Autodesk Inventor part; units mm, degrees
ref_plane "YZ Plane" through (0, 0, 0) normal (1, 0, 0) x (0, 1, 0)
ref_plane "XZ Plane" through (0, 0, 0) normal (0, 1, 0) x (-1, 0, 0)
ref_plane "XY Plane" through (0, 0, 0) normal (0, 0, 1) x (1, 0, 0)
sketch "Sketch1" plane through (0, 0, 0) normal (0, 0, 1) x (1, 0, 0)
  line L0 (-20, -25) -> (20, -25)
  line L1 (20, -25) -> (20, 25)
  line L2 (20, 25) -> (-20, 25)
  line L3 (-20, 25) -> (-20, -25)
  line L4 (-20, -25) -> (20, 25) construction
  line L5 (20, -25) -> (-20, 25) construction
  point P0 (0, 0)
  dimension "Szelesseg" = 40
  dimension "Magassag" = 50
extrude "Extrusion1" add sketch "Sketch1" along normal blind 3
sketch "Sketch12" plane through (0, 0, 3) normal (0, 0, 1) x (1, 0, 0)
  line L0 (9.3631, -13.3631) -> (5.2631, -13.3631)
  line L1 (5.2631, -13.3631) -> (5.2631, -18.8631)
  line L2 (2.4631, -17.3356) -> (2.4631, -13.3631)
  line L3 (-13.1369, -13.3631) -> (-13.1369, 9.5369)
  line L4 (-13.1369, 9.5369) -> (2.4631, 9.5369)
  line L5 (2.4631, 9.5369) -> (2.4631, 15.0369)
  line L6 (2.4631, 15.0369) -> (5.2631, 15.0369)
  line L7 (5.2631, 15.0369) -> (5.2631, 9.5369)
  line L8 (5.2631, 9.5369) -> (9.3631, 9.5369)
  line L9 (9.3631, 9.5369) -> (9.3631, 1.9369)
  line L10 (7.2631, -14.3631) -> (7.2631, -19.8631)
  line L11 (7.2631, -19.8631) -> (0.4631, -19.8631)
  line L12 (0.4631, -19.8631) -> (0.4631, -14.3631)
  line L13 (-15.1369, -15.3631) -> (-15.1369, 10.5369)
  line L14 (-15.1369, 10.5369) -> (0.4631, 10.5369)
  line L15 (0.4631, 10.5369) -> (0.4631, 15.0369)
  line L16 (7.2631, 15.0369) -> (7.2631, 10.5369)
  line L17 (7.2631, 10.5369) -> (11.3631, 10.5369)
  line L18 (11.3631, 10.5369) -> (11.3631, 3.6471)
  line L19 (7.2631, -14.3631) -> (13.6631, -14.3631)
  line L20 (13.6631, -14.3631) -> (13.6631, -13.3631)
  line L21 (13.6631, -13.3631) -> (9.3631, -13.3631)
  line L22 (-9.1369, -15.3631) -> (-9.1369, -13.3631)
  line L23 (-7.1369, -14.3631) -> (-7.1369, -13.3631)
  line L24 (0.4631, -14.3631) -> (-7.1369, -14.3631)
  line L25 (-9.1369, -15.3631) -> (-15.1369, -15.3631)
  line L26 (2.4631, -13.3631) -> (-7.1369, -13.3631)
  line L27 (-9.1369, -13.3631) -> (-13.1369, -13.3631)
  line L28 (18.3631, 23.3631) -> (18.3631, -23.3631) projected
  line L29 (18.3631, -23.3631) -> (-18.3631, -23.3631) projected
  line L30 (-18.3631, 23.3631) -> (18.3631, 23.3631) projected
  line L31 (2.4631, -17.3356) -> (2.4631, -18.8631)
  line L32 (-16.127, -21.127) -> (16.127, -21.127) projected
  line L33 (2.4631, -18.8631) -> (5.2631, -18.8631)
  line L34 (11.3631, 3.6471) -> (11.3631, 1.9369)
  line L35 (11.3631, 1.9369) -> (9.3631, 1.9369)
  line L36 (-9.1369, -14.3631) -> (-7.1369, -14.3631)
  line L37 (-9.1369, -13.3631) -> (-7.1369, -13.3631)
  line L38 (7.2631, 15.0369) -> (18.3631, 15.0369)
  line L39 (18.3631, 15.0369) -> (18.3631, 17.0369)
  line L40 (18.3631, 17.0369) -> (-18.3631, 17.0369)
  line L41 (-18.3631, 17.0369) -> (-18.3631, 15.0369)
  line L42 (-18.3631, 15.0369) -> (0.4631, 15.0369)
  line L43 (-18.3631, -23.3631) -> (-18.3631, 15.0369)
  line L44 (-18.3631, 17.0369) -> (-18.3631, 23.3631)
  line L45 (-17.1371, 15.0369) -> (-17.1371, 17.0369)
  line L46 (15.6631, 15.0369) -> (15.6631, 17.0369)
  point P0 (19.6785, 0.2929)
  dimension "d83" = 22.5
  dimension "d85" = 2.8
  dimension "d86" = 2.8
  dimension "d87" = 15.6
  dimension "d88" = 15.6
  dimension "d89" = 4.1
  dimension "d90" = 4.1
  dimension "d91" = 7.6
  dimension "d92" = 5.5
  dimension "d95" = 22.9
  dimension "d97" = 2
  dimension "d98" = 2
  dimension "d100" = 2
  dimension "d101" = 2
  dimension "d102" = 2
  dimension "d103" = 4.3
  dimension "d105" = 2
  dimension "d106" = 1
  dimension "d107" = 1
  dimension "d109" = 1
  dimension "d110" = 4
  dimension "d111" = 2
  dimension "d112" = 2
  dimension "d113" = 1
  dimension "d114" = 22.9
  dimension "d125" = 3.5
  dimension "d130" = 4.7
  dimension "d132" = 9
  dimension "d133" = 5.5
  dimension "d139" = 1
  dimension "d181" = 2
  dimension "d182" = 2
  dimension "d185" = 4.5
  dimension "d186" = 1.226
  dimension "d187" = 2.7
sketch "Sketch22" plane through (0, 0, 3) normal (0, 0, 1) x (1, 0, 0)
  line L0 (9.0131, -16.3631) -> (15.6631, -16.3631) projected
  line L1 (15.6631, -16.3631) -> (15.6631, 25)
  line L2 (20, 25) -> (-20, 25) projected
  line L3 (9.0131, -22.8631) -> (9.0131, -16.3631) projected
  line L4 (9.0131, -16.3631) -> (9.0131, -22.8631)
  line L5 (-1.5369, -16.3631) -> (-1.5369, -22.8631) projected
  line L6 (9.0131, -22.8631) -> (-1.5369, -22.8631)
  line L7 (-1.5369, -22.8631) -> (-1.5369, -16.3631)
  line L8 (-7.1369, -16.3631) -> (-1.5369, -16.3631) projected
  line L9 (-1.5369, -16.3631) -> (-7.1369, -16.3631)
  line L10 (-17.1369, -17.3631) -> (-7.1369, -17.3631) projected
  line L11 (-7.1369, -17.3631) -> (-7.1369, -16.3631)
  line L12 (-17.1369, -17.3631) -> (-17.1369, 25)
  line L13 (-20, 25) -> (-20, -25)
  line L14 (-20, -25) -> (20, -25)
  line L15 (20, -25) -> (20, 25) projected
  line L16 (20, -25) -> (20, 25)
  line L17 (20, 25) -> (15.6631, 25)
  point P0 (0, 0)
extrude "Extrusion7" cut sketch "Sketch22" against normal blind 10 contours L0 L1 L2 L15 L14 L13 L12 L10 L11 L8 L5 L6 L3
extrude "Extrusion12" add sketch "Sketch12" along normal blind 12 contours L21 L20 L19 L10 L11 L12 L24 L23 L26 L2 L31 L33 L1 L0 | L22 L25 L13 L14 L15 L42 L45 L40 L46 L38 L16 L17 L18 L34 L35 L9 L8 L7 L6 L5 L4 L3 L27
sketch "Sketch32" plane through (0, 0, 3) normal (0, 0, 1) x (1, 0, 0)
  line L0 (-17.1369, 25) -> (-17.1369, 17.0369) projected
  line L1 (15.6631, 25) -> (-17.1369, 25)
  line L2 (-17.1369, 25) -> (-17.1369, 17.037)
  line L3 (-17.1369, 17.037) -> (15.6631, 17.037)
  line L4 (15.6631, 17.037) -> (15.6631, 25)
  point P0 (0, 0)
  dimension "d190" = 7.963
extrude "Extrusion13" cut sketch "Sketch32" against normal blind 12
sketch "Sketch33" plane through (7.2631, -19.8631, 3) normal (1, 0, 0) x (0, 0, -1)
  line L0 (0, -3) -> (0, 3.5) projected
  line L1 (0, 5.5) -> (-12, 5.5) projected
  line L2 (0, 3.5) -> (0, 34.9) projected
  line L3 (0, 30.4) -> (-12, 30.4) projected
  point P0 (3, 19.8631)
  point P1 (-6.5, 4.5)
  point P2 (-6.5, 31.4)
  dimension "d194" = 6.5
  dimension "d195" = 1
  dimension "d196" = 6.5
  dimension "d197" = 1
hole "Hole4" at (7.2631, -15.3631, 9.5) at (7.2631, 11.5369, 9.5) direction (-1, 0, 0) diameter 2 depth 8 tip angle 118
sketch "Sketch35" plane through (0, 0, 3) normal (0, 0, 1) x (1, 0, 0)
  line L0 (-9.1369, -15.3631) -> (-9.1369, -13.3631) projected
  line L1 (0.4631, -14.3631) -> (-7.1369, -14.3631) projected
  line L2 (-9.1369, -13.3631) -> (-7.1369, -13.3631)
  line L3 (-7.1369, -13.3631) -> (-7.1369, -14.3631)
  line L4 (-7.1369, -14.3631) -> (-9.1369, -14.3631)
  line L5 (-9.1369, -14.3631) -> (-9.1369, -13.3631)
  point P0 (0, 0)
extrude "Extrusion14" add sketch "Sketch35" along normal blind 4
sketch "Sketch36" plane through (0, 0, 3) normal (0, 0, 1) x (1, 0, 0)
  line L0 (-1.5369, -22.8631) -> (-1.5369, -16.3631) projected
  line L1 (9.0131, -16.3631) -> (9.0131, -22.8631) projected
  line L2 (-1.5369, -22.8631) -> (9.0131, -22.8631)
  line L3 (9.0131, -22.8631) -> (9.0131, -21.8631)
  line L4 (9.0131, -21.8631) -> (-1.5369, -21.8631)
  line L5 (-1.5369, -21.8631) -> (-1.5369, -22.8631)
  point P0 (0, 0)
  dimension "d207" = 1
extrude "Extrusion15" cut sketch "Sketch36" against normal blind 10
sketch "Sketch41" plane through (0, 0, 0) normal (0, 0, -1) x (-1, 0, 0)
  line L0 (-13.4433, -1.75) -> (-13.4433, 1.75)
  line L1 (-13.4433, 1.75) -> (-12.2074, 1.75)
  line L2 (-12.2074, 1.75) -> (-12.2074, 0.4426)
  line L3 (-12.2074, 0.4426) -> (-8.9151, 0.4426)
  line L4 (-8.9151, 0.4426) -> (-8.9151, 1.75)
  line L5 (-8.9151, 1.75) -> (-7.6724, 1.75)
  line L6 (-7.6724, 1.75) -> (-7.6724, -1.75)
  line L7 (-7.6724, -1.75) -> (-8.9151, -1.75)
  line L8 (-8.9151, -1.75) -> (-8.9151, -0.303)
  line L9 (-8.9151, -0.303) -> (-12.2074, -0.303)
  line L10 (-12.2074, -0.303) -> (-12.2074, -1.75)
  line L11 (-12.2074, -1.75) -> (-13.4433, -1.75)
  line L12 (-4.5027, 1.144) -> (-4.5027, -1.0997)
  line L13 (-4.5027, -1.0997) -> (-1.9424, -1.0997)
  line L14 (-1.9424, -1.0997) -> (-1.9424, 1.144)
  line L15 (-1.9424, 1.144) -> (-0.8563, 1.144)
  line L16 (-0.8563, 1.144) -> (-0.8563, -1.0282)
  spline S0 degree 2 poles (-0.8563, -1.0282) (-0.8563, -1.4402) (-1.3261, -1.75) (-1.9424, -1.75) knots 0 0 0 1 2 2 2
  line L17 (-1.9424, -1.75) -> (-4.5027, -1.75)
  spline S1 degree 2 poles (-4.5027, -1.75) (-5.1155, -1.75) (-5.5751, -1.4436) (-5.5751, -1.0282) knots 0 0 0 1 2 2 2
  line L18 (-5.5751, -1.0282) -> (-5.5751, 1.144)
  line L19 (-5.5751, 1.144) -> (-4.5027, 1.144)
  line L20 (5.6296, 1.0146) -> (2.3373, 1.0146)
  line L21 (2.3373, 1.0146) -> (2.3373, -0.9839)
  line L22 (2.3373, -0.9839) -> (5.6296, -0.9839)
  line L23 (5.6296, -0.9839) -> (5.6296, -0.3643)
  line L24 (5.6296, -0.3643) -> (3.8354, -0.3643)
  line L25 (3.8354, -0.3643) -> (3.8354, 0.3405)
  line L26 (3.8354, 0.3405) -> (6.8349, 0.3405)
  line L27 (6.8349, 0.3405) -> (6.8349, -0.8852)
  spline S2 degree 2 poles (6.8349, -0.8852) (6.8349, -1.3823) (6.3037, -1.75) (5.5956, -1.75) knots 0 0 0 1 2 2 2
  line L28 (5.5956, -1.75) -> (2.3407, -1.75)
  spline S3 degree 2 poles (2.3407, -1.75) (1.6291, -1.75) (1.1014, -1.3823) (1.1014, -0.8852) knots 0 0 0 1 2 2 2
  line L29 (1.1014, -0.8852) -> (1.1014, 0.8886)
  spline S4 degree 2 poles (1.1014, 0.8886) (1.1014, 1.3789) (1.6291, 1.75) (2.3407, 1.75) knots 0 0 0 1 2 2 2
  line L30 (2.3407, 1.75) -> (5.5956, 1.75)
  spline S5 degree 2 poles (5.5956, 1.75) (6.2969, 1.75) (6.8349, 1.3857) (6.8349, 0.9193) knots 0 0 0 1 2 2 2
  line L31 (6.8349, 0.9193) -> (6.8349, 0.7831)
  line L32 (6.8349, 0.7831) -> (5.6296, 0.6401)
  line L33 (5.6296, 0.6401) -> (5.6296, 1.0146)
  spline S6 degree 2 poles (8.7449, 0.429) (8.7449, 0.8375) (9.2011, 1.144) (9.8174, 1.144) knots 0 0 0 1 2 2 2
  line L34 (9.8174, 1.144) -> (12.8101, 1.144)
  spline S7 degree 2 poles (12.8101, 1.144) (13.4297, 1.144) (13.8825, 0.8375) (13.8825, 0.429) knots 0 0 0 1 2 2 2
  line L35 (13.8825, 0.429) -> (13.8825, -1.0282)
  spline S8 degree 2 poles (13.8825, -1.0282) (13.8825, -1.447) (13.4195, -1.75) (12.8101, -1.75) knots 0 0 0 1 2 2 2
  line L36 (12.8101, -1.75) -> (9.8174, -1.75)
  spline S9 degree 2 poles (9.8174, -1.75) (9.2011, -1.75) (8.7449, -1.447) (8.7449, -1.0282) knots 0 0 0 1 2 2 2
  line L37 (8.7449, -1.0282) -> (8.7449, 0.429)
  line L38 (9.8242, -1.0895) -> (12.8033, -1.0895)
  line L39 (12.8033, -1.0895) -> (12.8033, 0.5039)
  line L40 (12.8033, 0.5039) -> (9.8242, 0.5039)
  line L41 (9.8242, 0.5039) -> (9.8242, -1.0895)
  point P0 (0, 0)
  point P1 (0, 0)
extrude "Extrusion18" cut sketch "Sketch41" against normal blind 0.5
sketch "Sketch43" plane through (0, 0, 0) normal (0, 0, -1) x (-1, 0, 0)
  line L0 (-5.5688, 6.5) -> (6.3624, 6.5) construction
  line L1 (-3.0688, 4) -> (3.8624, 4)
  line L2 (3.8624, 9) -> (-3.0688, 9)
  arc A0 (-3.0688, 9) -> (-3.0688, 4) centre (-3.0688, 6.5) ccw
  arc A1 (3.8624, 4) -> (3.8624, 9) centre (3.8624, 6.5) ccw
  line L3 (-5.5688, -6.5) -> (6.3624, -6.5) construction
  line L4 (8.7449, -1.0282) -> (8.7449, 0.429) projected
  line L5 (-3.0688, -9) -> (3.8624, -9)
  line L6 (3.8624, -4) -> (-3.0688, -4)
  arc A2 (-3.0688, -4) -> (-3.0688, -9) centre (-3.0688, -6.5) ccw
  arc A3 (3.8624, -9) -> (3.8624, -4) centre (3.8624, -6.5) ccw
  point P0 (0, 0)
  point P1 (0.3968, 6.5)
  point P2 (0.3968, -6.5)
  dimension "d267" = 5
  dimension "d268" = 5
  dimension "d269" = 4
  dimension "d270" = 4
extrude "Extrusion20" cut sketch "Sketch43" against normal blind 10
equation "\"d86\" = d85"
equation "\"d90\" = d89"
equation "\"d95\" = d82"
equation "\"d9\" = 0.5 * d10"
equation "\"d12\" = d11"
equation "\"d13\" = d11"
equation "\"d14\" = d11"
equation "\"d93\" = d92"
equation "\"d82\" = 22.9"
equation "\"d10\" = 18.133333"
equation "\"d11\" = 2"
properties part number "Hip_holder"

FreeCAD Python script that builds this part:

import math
import FreeCAD as App
import Part
import Sketcher
from FreeCAD import Vector
Q = App.Units.Quantity

doc = App.newDocument("Part")
body = doc.addObject("PartDesign::Body", "Body")

# Sketch on XY plane
sketch1 = doc.addObject("Sketcher::SketchObject", "Sketch")
body.addObject(sketch1)
sketch1.AttachmentSupport = (doc.XY_Plane, [""])
sketch1.MapMode = "FlatFace"
sketch1.addGeometry(Part.LineSegment(Vector(-20, 25, 0), Vector(-20, -25, 0)), False)
sketch1.addGeometry(Part.LineSegment(Vector(-20, -25, 0), Vector(20, -25, 0)), False)
sketch1.addGeometry(Part.LineSegment(Vector(20, -25, 0), Vector(20, 25, 0)), False)
sketch1.addGeometry(Part.LineSegment(Vector(20, 25, 0), Vector(-20, 25, 0)), False)
sketch1.addConstraint(Sketcher.Constraint("Coincident", 0, 2, 1, 1))
sketch1.addConstraint(Sketcher.Constraint("Coincident", 1, 2, 2, 1))
sketch1.addConstraint(Sketcher.Constraint("Coincident", 2, 2, 3, 1))
sketch1.addConstraint(Sketcher.Constraint("Coincident", 3, 2, 0, 1))
sketch1.addConstraint(Sketcher.Constraint("Vertical", 0))
sketch1.addConstraint(Sketcher.Constraint("Horizontal", 1))
sketch1.addConstraint(Sketcher.Constraint("Vertical", 2))
sketch1.addConstraint(Sketcher.Constraint("Horizontal", 3))
sketch1.addConstraint(Sketcher.Constraint("Symmetric", 0, 2, 2, 2, -1, 1))
sketch1.addConstraint(Sketcher.Constraint("DistanceX", 1, 1, 1, 2, Q("40 mm")))
sketch1.addConstraint(Sketcher.Constraint("DistanceY", 0, 2, 0, 1, Q("50 mm")))
pad1 = doc.addObject("PartDesign::Pad", "Pad")
body.addObject(pad1)
pad1.Profile = sketch1
pad1.Length = 3

# Sketch on XY plane
sketch2 = doc.addObject("Sketcher::SketchObject", "Sketch001")
body.addObject(sketch2)
sketch2.AttachmentSupport = (doc.XY_Plane, [""])
sketch2.MapMode = "FlatFace"
sketch2.AttachmentOffset = App.Placement(Vector(0, 0, 3), App.Rotation())
sketch2.addGeometry(Part.LineSegment(Vector(15.6631, -16.3631, 0), Vector(9.0131, -16.3631, 0)), False)
sketch2.addGeometry(Part.LineSegment(Vector(9.0131, -16.3631, 0), Vector(9.0131, -22.8631, 0)), False)
sketch2.addGeometry(Part.LineSegment(Vector(9.0131, -22.8631, 0), Vector(-1.5369, -22.8631, 0)), False)
sketch2.addGeometry(Part.LineSegment(Vector(-1.5369, -22.8631, 0), Vector(-1.5369, -16.3631, 0)), False)
sketch2.addGeometry(Part.LineSegment(Vector(-1.5369, -16.3631, 0), Vector(-7.1369, -16.3631, 0)), False)
sketch2.addGeometry(Part.LineSegment(Vector(-7.1369, -16.3631, 0), Vector(-7.1369, -17.3631, 0)), False)
sketch2.addGeometry(Part.LineSegment(Vector(-7.1369, -17.3631, 0), Vector(-17.1369, -17.3631, 0)), False)
sketch2.addGeometry(Part.LineSegment(Vector(-17.1369, -17.3631, 0), Vector(-17.1369, 25, 0)), False)
sketch2.addGeometry(Part.LineSegment(Vector(-17.1369, 25, 0), Vector(-20, 25, 0)), False)
sketch2.addGeometry(Part.LineSegment(Vector(-20, 25, 0), Vector(-20, -25, 0)), False)
sketch2.addGeometry(Part.LineSegment(Vector(-20, -25, 0), Vector(20, -25, 0)), False)
sketch2.addGeometry(Part.LineSegment(Vector(20, -25, 0), Vector(20, 25, 0)), False)
sketch2.addGeometry(Part.LineSegment(Vector(20, 25, 0), Vector(15.6631, 25, 0)), False)
sketch2.addGeometry(Part.LineSegment(Vector(15.6631, 25, 0), Vector(15.6631, -16.3631, 0)), False)
sketch2.addConstraint(Sketcher.Constraint("Coincident", 0, 2, 1, 1))
sketch2.addConstraint(Sketcher.Constraint("Coincident", 1, 2, 2, 1))
sketch2.addConstraint(Sketcher.Constraint("Coincident", 2, 2, 3, 1))
sketch2.addConstraint(Sketcher.Constraint("Coincident", 3, 2, 4, 1))
sketch2.addConstraint(Sketcher.Constraint("Coincident", 4, 2, 5, 1))
sketch2.addConstraint(Sketcher.Constraint("Coincident", 5, 2, 6, 1))
sketch2.addConstraint(Sketcher.Constraint("Coincident", 6, 2, 7, 1))
sketch2.addConstraint(Sketcher.Constraint("Coincident", 7, 2, 8, 1))
sketch2.addConstraint(Sketcher.Constraint("Coincident", 8, 2, 9, 1))
sketch2.addConstraint(Sketcher.Constraint("Coincident", 9, 2, 10, 1))
sketch2.addConstraint(Sketcher.Constraint("Coincident", 10, 2, 11, 1))
sketch2.addConstraint(Sketcher.Constraint("Coincident", 11, 2, 12, 1))
sketch2.addConstraint(Sketcher.Constraint("Coincident", 12, 2, 13, 1))
sketch2.addConstraint(Sketcher.Constraint("Coincident", 13, 2, 0, 1))
sketch2.addConstraint(Sketcher.Constraint("Horizontal", 0))
sketch2.addConstraint(Sketcher.Constraint("Vertical", 1))
sketch2.addConstraint(Sketcher.Constraint("Horizontal", 2))
sketch2.addConstraint(Sketcher.Constraint("Vertical", 3))
sketch2.addConstraint(Sketcher.Constraint("Horizontal", 4))
sketch2.addConstraint(Sketcher.Constraint("Vertical", 5))
sketch2.addConstraint(Sketcher.Constraint("Horizontal", 6))
sketch2.addConstraint(Sketcher.Constraint("Vertical", 7))
sketch2.addConstraint(Sketcher.Constraint("Horizontal", 8))
sketch2.addConstraint(Sketcher.Constraint("Vertical", 9))
sketch2.addConstraint(Sketcher.Constraint("Horizontal", 10))
sketch2.addConstraint(Sketcher.Constraint("Vertical", 11))
sketch2.addConstraint(Sketcher.Constraint("Horizontal", 12))
sketch2.addConstraint(Sketcher.Constraint("Vertical", 13))
sketch2.addConstraint(Sketcher.Constraint("Symmetric", 8, 2, 10, 2, -1, 1))
sketch2.addConstraint(Sketcher.Constraint("Horizontal", 0, 2, 3, 2))
sketch2.addConstraint(Sketcher.Constraint("Horizontal", 8, 2, 11, 2))
sketch2.addConstraint(Sketcher.Constraint("DistanceX", 6, 2, 6, 1, Q("10 mm")))
sketch2.addConstraint(Sketcher.Constraint("DistanceX", 10, 1, 10, 2, Q("40 mm")))
sketch2.addConstraint(Sketcher.Constraint("DistanceY", 5, 2, 5, 1, Q("1 mm")))
sketch2.addConstraint(Sketcher.Constraint("DistanceY", 9, 2, 9, 1, Q("50 mm")))
sketch2.addConstraint(Sketcher.Constraint("DistanceX", 4, 2, 4, 1, Q("5.6 mm")))
sketch2.addConstraint(Sketcher.Constraint("DistanceY", 1, 2, 1, 1, Q("6.5 mm")))
sketch2.addConstraint(Sketcher.Constraint("DistanceX", 0, 2, 0, 1, Q("6.65 mm")))
sketch2.addConstraint(Sketcher.Constraint("DistanceX", 2, 2, 2, 1, Q("10.55 mm")))
sketch2.addConstraint(Sketcher.Constraint("DistanceX", 8, 2, 8, 1, Q("2.863 mm")))
sketch2.addConstraint(Sketcher.Constraint("DistanceY", 7, 1, 7, 2, Q("42.363 mm")))
pocket1 = doc.addObject("PartDesign::Pocket", "Pocket")
body.addObject(pocket1)
pocket1.Profile = sketch2
pocket1.Length = 10

# Sketch on XY plane
sketch3 = doc.addObject("Sketcher::SketchObject", "Sketch002")
body.addObject(sketch3)
sketch3.AttachmentSupport = (doc.XY_Plane, [""])
sketch3.MapMode = "FlatFace"
sketch3.AttachmentOffset = App.Placement(Vector(0, 0, 3), App.Rotation())
sketch3.addGeometry(Part.LineSegment(Vector(13.6631, -13.3631, 0), Vector(5.2631, -13.3631, 0)), False)
sketch3.addGeometry(Part.LineSegment(Vector(5.2631, -13.3631, 0), Vector(5.2631, -18.8631, 0)), False)
sketch3.addGeometry(Part.LineSegment(Vector(5.2631, -18.8631, 0), Vector(2.4631, -18.8631, 0)), False)
sketch3.addGeometry(Part.LineSegment(Vector(2.4631, -18.8631, 0), Vector(2.4631, -13.3631, 0)), False)
sketch3.addGeometry(Part.LineSegment(Vector(2.4631, -13.3631, 0), Vector(-7.1369, -13.3631, 0)), False)
sketch3.addGeometry(Part.LineSegment(Vector(-7.1369, -13.3631, 0), Vector(-7.1369, -14.3631, 0)), False)
sketch3.addGeometry(Part.LineSegment(Vector(-7.1369, -14.3631, 0), Vector(0.4631, -14.3631, 0)), False)
sketch3.addGeometry(Part.LineSegment(Vector(0.4631, -14.3631, 0), Vector(0.4631, -19.8631, 0)), False)
sketch3.addGeometry(Part.LineSegment(Vector(0.4631, -19.8631, 0), Vector(7.2631, -19.8631, 0)), False)
sketch3.addGeometry(Part.LineSegment(Vector(7.2631, -19.8631, 0), Vector(7.2631, -14.3631, 0)), False)
sketch3.addGeometry(Part.LineSegment(Vector(7.2631, -14.3631, 0), Vector(13.6631, -14.3631, 0)), False)
sketch3.addGeometry(Part.LineSegment(Vector(13.6631, -14.3631, 0), Vector(13.6631, -13.3631, 0)), False)
sketch3.addGeometry(Part.LineSegment(Vector(-9.1369, -15.3631, 0), Vector(-9.1369, -13.3631, 0)), False)
sketch3.addGeometry(Part.LineSegment(Vector(-9.1369, -13.3631, 0), Vector(-13.1369, -13.3631, 0)), False)
sketch3.addGeometry(Part.LineSegment(Vector(-13.1369, -13.3631, 0), Vector(-13.1369, 9.5369, 0)), False)
sketch3.addGeometry(Part.LineSegment(Vector(-13.1369, 9.5369, 0), Vector(2.4631, 9.5369, 0)), False)
sketch3.addGeometry(Part.LineSegment(Vector(2.4631, 9.5369, 0), Vector(2.4631, 15.0369, 0)), False)
sketch3.addGeometry(Part.LineSegment(Vector(2.4631, 15.0369, 0), Vector(5.2631, 15.0369, 0)), False)
sketch3.addGeometry(Part.LineSegment(Vector(5.2631, 15.0369, 0), Vector(5.2631, 9.5369, 0)), False)
sketch3.addGeometry(Part.LineSegment(Vector(5.2631, 9.5369, 0), Vector(9.3631, 9.5369, 0)), False)
sketch3.addGeometry(Part.LineSegment(Vector(9.3631, 9.5369, 0), Vector(9.3631, 1.9369, 0)), False)
sketch3.addGeometry(Part.LineSegment(Vector(9.3631, 1.9369, 0), Vector(11.3631, 1.9369, 0)), False)
sketch3.addGeometry(Part.LineSegment(Vector(11.3631, 1.9369, 0), Vector(11.3631, 10.5369, 0)), False)
sketch3.addGeometry(Part.LineSegment(Vector(11.3631, 10.5369, 0), Vector(7.2631, 10.5369, 0)), False)
sketch3.addGeometry(Part.LineSegment(Vector(7.2631, 10.5369, 0), Vector(7.2631, 15.0369, 0)), False)
sketch3.addGeometry(Part.LineSegment(Vector(7.2631, 15.0369, 0), Vector(15.6631, 15.0369, 0)), False)
sketch3.addGeometry(Part.LineSegment(Vector(15.6631, 15.0369, 0), Vector(15.6631, 17.0369, 0)), False)
sketch3.addGeometry(Part.LineSegment(Vector(15.6631, 17.0369, 0), Vector(-17.1371, 17.0369, 0)), False)
sketch3.addGeometry(Part.LineSegment(Vector(-17.1371, 17.0369, 0), Vector(-17.1371, 15.0369, 0)), False)
sketch3.addGeometry(Part.LineSegment(Vector(-17.1371, 15.0369, 0), Vector(0.4631, 15.0369, 0)), False)
sketch3.addGeometry(Part.LineSegment(Vector(0.4631, 15.0369, 0), Vector(0.4631, 10.5369, 0)), False)
sketch3.addGeometry(Part.LineSegment(Vector(0.4631, 10.5369, 0), Vector(-15.1369, 10.5369, 0)), False)
sketch3.addGeometry(Part.LineSegment(Vector(-15.1369, 10.5369, 0), Vector(-15.1369, -15.3631, 0)), False)
sketch3.addGeometry(Part.LineSegment(Vector(-15.1369, -15.3631, 0), Vector(-9.1369, -15.3631, 0)), False)
sketch3.addConstraint(Sketcher.Constraint("Coincident", 0, 2, 1, 1))
sketch3.addConstraint(Sketcher.Constraint("Coincident", 1, 2, 2, 1))
sketch3.addConstraint(Sketcher.Constraint("Coincident", 2, 2, 3, 1))
sketch3.addConstraint(Sketcher.Constraint("Coincident", 3, 2, 4, 1))
sketch3.addConstraint(Sketcher.Constraint("Coincident", 4, 2, 5, 1))
sketch3.addConstraint(Sketcher.Constraint("Coincident", 5, 2, 6, 1))
sketch3.addConstraint(Sketcher.Constraint("Coincident", 6, 2, 7, 1))
sketch3.addConstraint(Sketcher.Constraint("Coincident", 7, 2, 8, 1))
sketch3.addConstraint(Sketcher.Constraint("Coincident", 8, 2, 9, 1))
sketch3.addConstraint(Sketcher.Constraint("Coincident", 9, 2, 10, 1))
sketch3.addConstraint(Sketcher.Constraint("Coincident", 10, 2, 11, 1))
sketch3.addConstraint(Sketcher.Constraint("Coincident", 11, 2, 0, 1))
sketch3.addConstraint(Sketcher.Constraint("Coincident", 12, 2, 13, 1))
sketch3.addConstraint(Sketcher.Constraint("Coincident", 13, 2, 14, 1))
sketch3.addConstraint(Sketcher.Constraint("Coincident", 14, 2, 15, 1))
sketch3.addConstraint(Sketcher.Constraint("Coincident", 15, 2, 16, 1))
sketch3.addConstraint(Sketcher.Constraint("Coincident", 16, 2, 17, 1))
sketch3.addConstraint(Sketcher.Constraint("Coincident", 17, 2, 18, 1))
sketch3.addConstraint(Sketcher.Constraint("Coincident", 18, 2, 19, 1))
sketch3.addConstraint(Sketcher.Constraint("Coincident", 19, 2, 20, 1))
sketch3.addConstraint(Sketcher.Constraint("Coincident", 20, 2, 21, 1))
sketch3.addConstraint(Sketcher.Constraint("Coincident", 21, 2, 22, 1))
sketch3.addConstraint(Sketcher.Constraint("Coincident", 22, 2, 23, 1))
sketch3.addConstraint(Sketcher.Constraint("Coincident", 23, 2, 24, 1))
sketch3.addConstraint(Sketcher.Constraint("Coincident", 24, 2, 25, 1))
sketch3.addConstraint(Sketcher.Constraint("Coincident", 25, 2, 26, 1))
sketch3.addConstraint(Sketcher.Constraint("Coincident", 26, 2, 27, 1))
sketch3.addConstraint(Sketcher.Constraint("Coincident", 27, 2, 28, 1))
sketch3.addConstraint(Sketcher.Constraint("Coincident", 28, 2, 29, 1))
sketch3.addConstraint(Sketcher.Constraint("Coincident", 29, 2, 30, 1))
sketch3.addConstraint(Sketcher.Constraint("Coincident", 30, 2, 31, 1))
sketch3.addConstraint(Sketcher.Constraint("Coincident", 31, 2, 32, 1))
sketch3.addConstraint(Sketcher.Constraint("Coincident", 32, 2, 33, 1))
sketch3.addConstraint(Sketcher.Constraint("Coincident", 33, 2, 12, 1))
sketch3.addConstraint(Sketcher.Constraint("Horizontal", 0))
sketch3.addConstraint(Sketcher.Constraint("Vertical", 1))
sketch3.addConstraint(Sketcher.Constraint("Horizontal", 2))
sketch3.addConstraint(Sketcher.Constraint("Vertical", 3))
sketch3.addConstraint(Sketcher.Constraint("Horizontal", 4))
sketch3.addConstraint(Sketcher.Constraint("Vertical", 5))
sketch3.addConstraint(Sketcher.Constraint("Horizontal", 6))
sketch3.addConstraint(Sketcher.Constraint("Vertical", 7))
sketch3.addConstraint(Sketcher.Constraint("Horizontal", 8))
sketch3.addConstraint(Sketcher.Constraint("Vertical", 9))
sketch3.addConstraint(Sketcher.Constraint("Horizontal", 10))
sketch3.addConstraint(Sketcher.Constraint("Vertical", 11))
sketch3.addConstraint(Sketcher.Constraint("Vertical", 12))
sketch3.addConstraint(Sketcher.Constraint("Horizontal", 13))
sketch3.addConstraint(Sketcher.Constraint("Vertical", 14))
sketch3.addConstraint(Sketcher.Constraint("Horizontal", 15))
sketch3.addConstraint(Sketcher.Constraint("Vertical", 16))
sketch3.addConstraint(Sketcher.Constraint("Horizontal", 17))
sketch3.addConstraint(Sketcher.Constraint("Vertical", 18))
sketch3.addConstraint(Sketcher.Constraint("Horizontal", 19))
sketch3.addConstraint(Sketcher.Constraint("Vertical", 20))
sketch3.addConstraint(Sketcher.Constraint("Horizontal", 21))
sketch3.addConstraint(Sketcher.Constraint("Vertical", 22))
sketch3.addConstraint(Sketcher.Constraint("Horizontal", 23))
sketch3.addConstraint(Sketcher.Constraint("Vertical", 24))
sketch3.addConstraint(Sketcher.Constraint("Horizontal", 25))
sketch3.addConstraint(Sketcher.Constraint("Vertical", 26))
sketch3.addConstraint(Sketcher.Constraint("Horizontal", 27))
sketch3.addConstraint(Sketcher.Constraint("Vertical", 28))
sketch3.addConstraint(Sketcher.Constraint("Horizontal", 29))
sketch3.addConstraint(Sketcher.Constraint("Vertical", 30))
sketch3.addConstraint(Sketcher.Constraint("Horizontal", 31))
sketch3.addConstraint(Sketcher.Constraint("Vertical", 32))
sketch3.addConstraint(Sketcher.Constraint("Horizontal", 33))
sketch3.addConstraint(Sketcher.Constraint("Horizontal", 0, 2, 3, 2))
sketch3.addConstraint(Sketcher.Constraint("Horizontal", 6, 2, 9, 2))
sketch3.addConstraint(Sketcher.Constraint("Horizontal", 11, 2, 12, 2))
sketch3.addConstraint(Sketcher.Constraint("Horizontal", 15, 2, 18, 2))
sketch3.addConstraint(Sketcher.Constraint("Horizontal", 17, 2, 24, 2))
sketch3.addConstraint(Sketcher.Constraint("Horizontal", 25, 2, 28, 2))
sketch3.addConstraint(Sketcher.Constraint("Horizontal", 23, 2, 30, 2))
sketch3.addConstraint(Sketcher.Constraint("Vertical", 3, 2, 15, 2))
sketch3.addConstraint(Sketcher.Constraint("Vertical", 1, 2, 17, 2))
sketch3.addConstraint(Sketcher.Constraint("Vertical", 9, 2, 23, 2))
sketch3.addConstraint(Sketcher.Constraint("Vertical", 7, 2, 29, 2))
sketch3.addConstraint(Sketcher.Constraint("Equal", 19, 23))
sketch3.addConstraint(Sketcher.Constraint("Equal", 0, 25))
sketch3.addConstraint(Sketcher.Constraint("Equal", 15, 31))
sketch3.addConstraint(Sketcher.Constraint("Equal", 3, 7))
sketch3.addConstraint(Sketcher.Constraint("Equal", 21, 12))
sketch3.addConstraint(Sketcher.Constraint("Equal", 9, 16))
sketch3.addConstraint(Sketcher.Constraint("Equal", 6, 20))
sketch3.addConstraint(Sketcher.Constraint("Equal", 12, 26))
sketch3.addConstraint(Sketcher.Constraint("DistanceX", 13, 2, 13, 1, Q("4 mm")))
sketch3.addConstraint(Sketcher.Constraint("DistanceX", 21, 1, 21, 2, Q("2 mm")))
sketch3.addConstraint(Sketcher.Constraint("DistanceY", 5, 2, 5, 1, Q("1 mm")))
sketch3.addConstraint(Sketcher.Constraint("DistanceX", 2, 2, 2, 1, Q("2.8 mm")))
sketch3.addConstraint(Sketcher.Constraint("DistanceX", 6, 1, 6, 2, Q("7.6 mm")))
sketch3.addConstraint(Sketcher.Constraint("DistanceX", 15, 1, 15, 2, Q("15.6 mm")))
sketch3.addConstraint(Sketcher.Constraint("DistanceX", 19, 1, 19, 2, Q("4.1 mm")))
sketch3.addConstraint(Sketcher.Constraint("DistanceY", 1, 2, 1, 1, Q("5.5 mm")))
sketch3.addConstraint(Sketcher.Constraint("DistanceY", 14, 1, 14, 2, Q("22.9 mm")))
sketch3.addConstraint(Sketcher.Constraint("DistanceY", 24, 1, 24, 2, Q("4.5 mm")))
sketch3.addConstraint(Sketcher.Constraint("DistanceX", 6, 2, 3, 2, Q("2 mm")))
sketch3.addConstraint(Sketcher.Constraint("DistanceX", 22, 2, 25, 2, Q("4.3 mm")))
sketch3.addConstraint(Sketcher.Constraint("DistanceX", 27, 2, 14, 2, Q("4.0002 mm")))
sketch3.addConstraint(Sketcher.Constraint("DistanceX", -1, 1, 0, 2, Q("5.263 mm")))
sketch3.addConstraint(Sketcher.Constraint("DistanceY", 0, 2, -1, 1, Q("13.363 mm")))
pad2 = doc.addObject("PartDesign::Pad", "Pad001")
body.addObject(pad2)
pad2.Profile = sketch3
pad2.Length = 12

# Sketch on XY plane
sketch4 = doc.addObject("Sketcher::SketchObject", "Sketch003")
body.addObject(sketch4)
sketch4.AttachmentSupport = (doc.XY_Plane, [""])
sketch4.MapMode = "FlatFace"
sketch4.AttachmentOffset = App.Placement(Vector(0, 0, 3), App.Rotation())
sketch4.addGeometry(Part.LineSegment(Vector(15.6631, 25, 0), Vector(-17.1369, 25, 0)), False)
sketch4.addGeometry(Part.LineSegment(Vector(-17.1369, 25, 0), Vector(-17.1369, 17.0369, 0)), False)
sketch4.addGeometry(Part.LineSegment(Vector(-17.1369, 17.0369, 0), Vector(15.6631, 17.037, 0)), False)
sketch4.addGeometry(Part.LineSegment(Vector(15.6631, 17.037, 0), Vector(15.6631, 25, 0)), False)
sketch4.addConstraint(Sketcher.Constraint("Coincident", 0, 2, 1, 1))
sketch4.addConstraint(Sketcher.Constraint("Coincident", 1, 2, 2, 1))
sketch4.addConstraint(Sketcher.Constraint("Coincident", 2, 2, 3, 1))
sketch4.addConstraint(Sketcher.Constraint("Coincident", 3, 2, 0, 1))
sketch4.addConstraint(Sketcher.Constraint("Horizontal", 0))
sketch4.addConstraint(Sketcher.Constraint("Vertical", 1))
sketch4.addConstraint(Sketcher.Constraint("Horizontal", 2))
sketch4.addConstraint(Sketcher.Constraint("Vertical", 3))
sketch4.addConstraint(Sketcher.Constraint("DistanceY", 1, 2, 1, 1, Q("7.963 mm")))
sketch4.addConstraint(Sketcher.Constraint("DistanceX", 0, 2, 0, 1, Q("32.8 mm")))
sketch4.addConstraint(Sketcher.Constraint("DistanceY", -1, 1, 0, 2, Q("25 mm")))
sketch4.addConstraint(Sketcher.Constraint("DistanceX", 0, 2, -1, 1, Q("17.137 mm")))
pocket2 = doc.addObject("PartDesign::Pocket", "Pocket001")
body.addObject(pocket2)
pocket2.Profile = sketch4
pocket2.Length = 12

# Sketch on YZ plane
sketch5 = doc.addObject("Sketcher::SketchObject", "Sketch004")
body.addObject(sketch5)
sketch5.AttachmentSupport = (doc.YZ_Plane, [""])
sketch5.MapMode = "FlatFace"
sketch5.AttachmentOffset = App.Placement(Vector(0, 0, 7.2631), App.Rotation())
sketch5.addGeometry(Part.Circle(Vector(-15.3631, 9.5, 0), Vector(0, 0, 1), 1), False)
sketch5.addGeometry(Part.Circle(Vector(11.5369, 9.5, 0), Vector(0, 0, 1), 1), False)
sketch5.addConstraint(Sketcher.Constraint("Equal", 0, 1))
sketch5.addConstraint(Sketcher.Constraint("Horizontal", 0, 3, 1, 3))
sketch5.addConstraint(Sketcher.Constraint("Diameter", 0, Q("2 mm")))
sketch5.addConstraint(Sketcher.Constraint("DistanceY", -1, 1, 0, 3, Q("9.5 mm")))
sketch5.addConstraint(Sketcher.Constraint("DistanceX", 0, 3, 1, 3, Q("26.9 mm")))
sketch5.addConstraint(Sketcher.Constraint("DistanceX", 0, 3, -1, 1, Q("15.363 mm")))
doc.recompute()
hole = doc.addObject("PartDesign::Hole", "Hole")
body.addObject(hole)
hole.Profile = sketch5
hole.ThreadType = "None"
hole.Diameter = 2
hole.DepthType = "Dimension"
hole.Depth = 8
hole.DrillPoint = "Angled"
hole.DrillPointAngle = 118

# Sketch on XY plane
sketch6 = doc.addObject("Sketcher::SketchObject", "Sketch005")
body.addObject(sketch6)
sketch6.AttachmentSupport = (doc.XY_Plane, [""])
sketch6.MapMode = "FlatFace"
sketch6.AttachmentOffset = App.Placement(Vector(0, 0, 3), App.Rotation())
sketch6.addGeometry(Part.LineSegment(Vector(-9.1369, -13.3631, 0), Vector(-9.1369, -14.3631, 0)), False)
sketch6.addGeometry(Part.LineSegment(Vector(-9.1369, -14.3631, 0), Vector(-7.1369, -14.3631, 0)), False)
sketch6.addGeometry(Part.LineSegment(Vector(-7.1369, -14.3631, 0), Vector(-7.1369, -13.3631, 0)), False)
sketch6.addGeometry(Part.LineSegment(Vector(-7.1369, -13.3631, 0), Vector(-9.1369, -13.3631, 0)), False)
sketch6.addConstraint(Sketcher.Constraint("Coincident", 0, 2, 1, 1))
sketch6.addConstraint(Sketcher.Constraint("Coincident", 1, 2, 2, 1))
sketch6.addConstraint(Sketcher.Constraint("Coincident", 2, 2, 3, 1))
sketch6.addConstraint(Sketcher.Constraint("Coincident", 3, 2, 0, 1))
sketch6.addConstraint(Sketcher.Constraint("Vertical", 0))
sketch6.addConstraint(Sketcher.Constraint("Horizontal", 1))
sketch6.addConstraint(Sketcher.Constraint("Vertical", 2))
sketch6.addConstraint(Sketcher.Constraint("Horizontal", 3))
sketch6.addConstraint(Sketcher.Constraint("DistanceX", 1, 1, 1, 2, Q("2 mm")))
sketch6.addConstraint(Sketcher.Constraint("DistanceY", 0, 2, 0, 1, Q("1 mm")))
sketch6.addConstraint(Sketcher.Constraint("DistanceX", 0, 2, -1, 1, Q("9.137 mm")))
sketch6.addConstraint(Sketcher.Constraint("DistanceY", 0, 2, -1, 1, Q("14.363 mm")))
pad3 = doc.addObject("PartDesign::Pad", "Pad002")
body.addObject(pad3)
pad3.Profile = sketch6
pad3.Length = 4

# Sketch on XY plane
sketch7 = doc.addObject("Sketcher::SketchObject", "Sketch006")
body.addObject(sketch7)
sketch7.AttachmentSupport = (doc.XY_Plane, [""])
sketch7.MapMode = "FlatFace"
sketch7.AttachmentOffset = App.Placement(Vector(0, 0, 3), App.Rotation())
sketch7.addGeometry(Part.LineSegment(Vector(-1.5369, -21.8631, 0), Vector(-1.5369, -22.8631, 0)), False)
sketch7.addGeometry(Part.LineSegment(Vector(-1.5369, -22.8631, 0), Vector(9.0131, -22.8631, 0)), False)
sketch7.addGeometry(Part.LineSegment(Vector(9.0131, -22.8631, 0), Vector(9.0131, -21.8631, 0)), False)
sketch7.addGeometry(Part.LineSegment(Vector(9.0131, -21.8631, 0), Vector(-1.5369, -21.8631, 0)), False)
sketch7.addConstraint(Sketcher.Constraint("Coincident", 0, 2, 1, 1))
sketch7.addConstraint(Sketcher.Constraint("Coincident", 1, 2, 2, 1))
sketch7.addConstraint(Sketcher.Constraint("Coincident", 2, 2, 3, 1))
sketch7.addConstraint(Sketcher.Constraint("Coincident", 3, 2, 0, 1))
sketch7.addConstraint(Sketcher.Constraint("Vertical", 0))
sketch7.addConstraint(Sketcher.Constraint("Horizontal", 1))
sketch7.addConstraint(Sketcher.Constraint("Vertical", 2))
sketch7.addConstraint(Sketcher.Constraint("Horizontal", 3))
sketch7.addConstraint(Sketcher.Constraint("DistanceY", 0, 2, 0, 1, Q("1 mm")))
sketch7.addConstraint(Sketcher.Constraint("DistanceX", 1, 1, 1, 2, Q("10.55 mm")))
sketch7.addConstraint(Sketcher.Constraint("DistanceX", 0, 2, -1, 1, Q("1.537 mm")))
sketch7.addConstraint(Sketcher.Constraint("DistanceY", 0, 2, -1, 1, Q("22.863 mm")))
pocket3 = doc.addObject("PartDesign::Pocket", "Pocket002")
body.addObject(pocket3)
pocket3.Profile = sketch7
pocket3.Length = 10

# Sketch on XY plane
sketch8 = doc.addObject("Sketcher::SketchObject", "Sketch007")
body.addObject(sketch8)
sketch8.AttachmentSupport = (doc.XY_Plane, [""])
sketch8.MapMode = "FlatFace"
sketch8.addGeometry(Part.LineSegment(Vector(13.4433, 1.75, 0), Vector(13.4433, -1.75, 0)), False)
sketch8.addGeometry(Part.LineSegment(Vector(13.4433, -1.75, 0), Vector(12.2074, -1.75, 0)), False)
sketch8.addGeometry(Part.LineSegment(Vector(12.2074, -1.75, 0), Vector(12.2074, -0.303, 0)), False)
sketch8.addGeometry(Part.LineSegment(Vector(12.2074, -0.303, 0), Vector(8.9151, -0.303, 0)), False)
sketch8.addGeometry(Part.LineSegment(Vector(8.9151, -0.303, 0), Vector(8.9151, -1.75, 0)), False)
sketch8.addGeometry(Part.LineSegment(Vector(8.9151, -1.75, 0), Vector(7.6724, -1.75, 0)), False)
sketch8.addGeometry(Part.LineSegment(Vector(7.6724, -1.75, 0), Vector(7.6724, 1.75, 0)), False)
sketch8.addGeometry(Part.LineSegment(Vector(7.6724, 1.75, 0), Vector(8.9151, 1.75, 0)), False)
sketch8.addGeometry(Part.LineSegment(Vector(8.9151, 1.75, 0), Vector(8.9151, 0.4426, 0)), False)
sketch8.addGeometry(Part.LineSegment(Vector(8.9151, 0.4426, 0), Vector(12.2074, 0.4426, 0)), False)
sketch8.addGeometry(Part.LineSegment(Vector(12.2074, 0.4426, 0), Vector(12.2074, 1.75, 0)), False)
sketch8.addGeometry(Part.LineSegment(Vector(12.2074, 1.75, 0), Vector(13.4433, 1.75, 0)), False)
sketch8.addGeometry(Part.LineSegment(Vector(4.5027, -1.0997, 0), Vector(4.5027, 1.144, 0)), False)
sketch8.addGeometry(Part.LineSegment(Vector(4.5027, 1.144, 0), Vector(5.5751, 1.144, 0)), False)
sketch8.addGeometry(Part.LineSegment(Vector(5.5751, 1.144, 0), Vector(5.5751, -1.0282, 0)), False)
sketch8.addGeometry(Part.BSplineCurve([Vector(4.5027, -1.75, 0), Vector(5.1155, -1.75, 0), Vector(5.5751, -1.4436, 0), Vector(5.5751, -1.0282, 0)], [3, 1, 3], [0, 1, 2], False, 2, [1, 1, 1, 1], False), False)
sketch8.addGeometry(Part.LineSegment(Vector(4.5027, -1.75, 0), Vector(1.9424, -1.75, 0)), False)
sketch8.addGeometry(Part.BSplineCurve([Vector(0.8563, -1.0282, 0), Vector(0.8563, -1.4402, 0), Vector(1.3261, -1.75, 0), Vector(1.9424, -1.75, 0)], [3, 1, 3], [0, 1, 2], False, 2, [1, 1, 1, 1], False), False)
sketch8.addGeometry(Part.LineSegment(Vector(0.8563, -1.0282, 0), Vector(0.8563, 1.144, 0)), False)
sketch8.addGeometry(Part.LineSegment(Vector(0.8563, 1.144, 0), Vector(1.9424, 1.144, 0)), False)
sketch8.addGeometry(Part.LineSegment(Vector(1.9424, 1.144, 0), Vector(1.9424, -1.0997, 0)), False)
sketch8.addGeometry(Part.LineSegment(Vector(1.9424, -1.0997, 0), Vector(4.5027, -1.0997, 0)), False)
sketch8.addGeometry(Part.LineSegment(Vector(-2.3373, 1.0146, 0), Vector(-5.6296, 1.0146, 0)), False)
sketch8.addGeometry(Part.LineSegment(Vector(-5.6296, 1.0146, 0), Vector(-5.6296, 0.6401, 0)), False)
sketch8.addGeometry(Part.LineSegment(Vector(-5.6296, 0.6401, 0), Vector(-6.8349, 0.7831, 0)), False)
sketch8.addGeometry(Part.LineSegment(Vector(-6.8349, 0.7831, 0), Vector(-6.8349, 0.9193, 0)), False)
sketch8.addGeometry(Part.BSplineCurve([Vector(-5.5956, 1.75, 0), Vector(-6.2969, 1.75, 0), Vector(-6.8349, 1.3857, 0), Vector(-6.8349, 0.9193, 0)], [3, 1, 3], [0, 1, 2], False, 2, [1, 1, 1, 1], False), False)
sketch8.addGeometry(Part.LineSegment(Vector(-5.5956, 1.75, 0), Vector(-2.3407, 1.75, 0)), False)
sketch8.addGeometry(Part.BSplineCurve([Vector(-1.1014, 0.8886, 0), Vector(-1.1014, 1.3789, 0), Vector(-1.6291, 1.75, 0), Vector(-2.3407, 1.75, 0)], [3, 1, 3], [0, 1, 2], False, 2, [1, 1, 1, 1], False), False)
sketch8.addGeometry(Part.LineSegment(Vector(-1.1014, 0.8886, 0), Vector(-1.1014, -0.8852, 0)), False)
sketch8.addGeometry(Part.BSplineCurve([Vector(-2.3407, -1.75, 0), Vector(-1.6291, -1.75, 0), Vector(-1.1014, -1.3823, 0), Vector(-1.1014, -0.8852, 0)], [3, 1, 3], [0, 1, 2], False, 2, [1, 1, 1, 1], False), False)
sketch8.addGeometry(Part.LineSegment(Vector(-2.3407, -1.75, 0), Vector(-5.5956, -1.75, 0)), False)
sketch8.addGeometry(Part.BSplineCurve([Vector(-6.8349, -0.8852, 0), Vector(-6.8349, -1.3823, 0), Vector(-6.3037, -1.75, 0), Vector(-5.5956, -1.75, 0)], [3, 1, 3], [0, 1, 2], False, 2, [1, 1, 1, 1], False), False)
sketch8.addGeometry(Part.LineSegment(Vector(-6.8349, -0.8852, 0), Vector(-6.8349, 0.3405, 0)), False)
sketch8.addGeometry(Part.LineSegment(Vector(-6.8349, 0.3405, 0), Vector(-3.8354, 0.3405, 0)), False)
sketch8.addGeometry(Part.LineSegment(Vector(-3.8354, 0.3405, 0), Vector(-3.8354, -0.3643, 0)), False)
sketch8.addGeometry(Part.LineSegment(Vector(-3.8354, -0.3643, 0), Vector(-5.6296, -0.3643, 0)), False)
sketch8.addGeometry(Part.LineSegment(Vector(-5.6296, -0.3643, 0), Vector(-5.6296, -0.9839, 0)), False)
sketch8.addGeometry(Part.LineSegment(Vector(-5.6296, -0.9839, 0), Vector(-2.3373, -0.9839, 0)), False)
sketch8.addGeometry(Part.LineSegment(Vector(-2.3373, -0.9839, 0), Vector(-2.3373, 1.0146, 0)), False)
sketch8.addGeometry(Part.BSplineCurve([Vector(-8.7449, 0.429, 0), Vector(-8.7449, 0.8375, 0), Vector(-9.2011, 1.144, 0), Vector(-9.8174, 1.144, 0)], [3, 1, 3], [0, 1, 2], False, 2, [1, 1, 1, 1], False), False)
sketch8.addGeometry(Part.LineSegment(Vector(-8.7449, 0.429, 0), Vector(-8.7449, -1.0282, 0)), False)
sketch8.addGeometry(Part.BSplineCurve([Vector(-9.8174, -1.75, 0), Vector(-9.2011, -1.75, 0), Vector(-8.7449, -1.447, 0), Vector(-8.7449, -1.0282, 0)], [3, 1, 3], [0, 1, 2], False, 2, [1, 1, 1, 1], False), False)
sketch8.addGeometry(Part.LineSegment(Vector(-9.8174, -1.75, 0), Vector(-12.8101, -1.75, 0)), False)
sketch8.addGeometry(Part.BSplineCurve([Vector(-13.8825, -1.0282, 0), Vector(-13.8825, -1.447, 0), Vector(-13.4195, -1.75, 0), Vector(-12.8101, -1.75, 0)], [3, 1, 3], [0, 1, 2], False, 2, [1, 1, 1, 1], False), False)
sketch8.addGeometry(Part.LineSegment(Vector(-13.8825, -1.0282, 0), Vector(-13.8825, 0.429, 0)), False)
sketch8.addGeometry(Part.BSplineCurve([Vector(-12.8101, 1.144, 0), Vector(-13.4297, 1.144, 0), Vector(-13.8825, 0.8375, 0), Vector(-13.8825, 0.429, 0)], [3, 1, 3], [0, 1, 2], False, 2, [1, 1, 1, 1], False), False)
sketch8.addGeometry(Part.LineSegment(Vector(-12.8101, 1.144, 0), Vector(-9.8174, 1.144, 0)), False)
sketch8.addGeometry(Part.LineSegment(Vector(-12.8033, -1.0895, 0), Vector(-9.8242, -1.0895, 0)), False)
sketch8.addGeometry(Part.LineSegment(Vector(-9.8242, -1.0895, 0), Vector(-9.8242, 0.5039, 0)), False)
sketch8.addGeometry(Part.LineSegment(Vector(-9.8242, 0.5039, 0), Vector(-12.8033, 0.5039, 0)), False)
sketch8.addGeometry(Part.LineSegment(Vector(-12.8033, 0.5039, 0), Vector(-12.8033, -1.0895, 0)), False)
sketch8.addConstraint(Sketcher.Constraint("Block", 15))
sketch8.addConstraint(Sketcher.Constraint("Block", 17))
sketch8.addConstraint(Sketcher.Constraint("Block", 26))
sketch8.addConstraint(Sketcher.Constraint("Block", 28))
sketch8.addConstraint(Sketcher.Constraint("Block", 30))
sketch8.addConstraint(Sketcher.Constraint("Block", 32))
sketch8.addConstraint(Sketcher.Constraint("Block", 40))
sketch8.addConstraint(Sketcher.Constraint("Block", 42))
sketch8.addConstraint(Sketcher.Constraint("Block", 44))
sketch8.addConstraint(Sketcher.Constraint("Block", 46))
sketch8.addConstraint(Sketcher.Constraint("Coincident", 0, 2, 1, 1))
sketch8.addConstraint(Sketcher.Constraint("Coincident", 1, 2, 2, 1))
sketch8.addConstraint(Sketcher.Constraint("Coincident", 2, 2, 3, 1))
sketch8.addConstraint(Sketcher.Constraint("Coincident", 3, 2, 4, 1))
sketch8.addConstraint(Sketcher.Constraint("Coincident", 4, 2, 5, 1))
sketch8.addConstraint(Sketcher.Constraint("Coincident", 5, 2, 6, 1))
sketch8.addConstraint(Sketcher.Constraint("Coincident", 6, 2, 7, 1))
sketch8.addConstraint(Sketcher.Constraint("Coincident", 7, 2, 8, 1))
sketch8.addConstraint(Sketcher.Constraint("Coincident", 8, 2, 9, 1))
sketch8.addConstraint(Sketcher.Constraint("Coincident", 9, 2, 10, 1))
sketch8.addConstraint(Sketcher.Constraint("Coincident", 10, 2, 11, 1))
sketch8.addConstraint(Sketcher.Constraint("Coincident", 11, 2, 0, 1))
sketch8.addConstraint(Sketcher.Constraint("Coincident", 12, 2, 13, 1))
sketch8.addConstraint(Sketcher.Constraint("Coincident", 13, 2, 14, 1))
sketch8.addConstraint(Sketcher.Constraint("Coincident", 14, 2, 15, 2))
sketch8.addConstraint(Sketcher.Constraint("Coincident", 15, 1, 16, 1))
sketch8.addConstraint(Sketcher.Constraint("Coincident", 16, 2, 17, 2))
sketch8.addConstraint(Sketcher.Constraint("Coincident", 17, 1, 18, 1))
sketch8.addConstraint(Sketcher.Constraint("Coincident", 18, 2, 19, 1))
sketch8.addConstraint(Sketcher.Constraint("Coincident", 19, 2, 20, 1))
sketch8.addConstraint(Sketcher.Constraint("Coincident", 20, 2, 21, 1))
sketch8.addConstraint(Sketcher.Constraint("Coincident", 21, 2, 12, 1))
sketch8.addConstraint(Sketcher.Constraint("Coincident", 22, 2, 23, 1))
sketch8.addConstraint(Sketcher.Constraint("Coincident", 23, 2, 24, 1))
sketch8.addConstraint(Sketcher.Constraint("Coincident", 24, 2, 25, 1))
sketch8.addConstraint(Sketcher.Constraint("Coincident", 25, 2, 26, 2))
sketch8.addConstraint(Sketcher.Constraint("Coincident", 26, 1, 27, 1))
sketch8.addConstraint(Sketcher.Constraint("Coincident", 27, 2, 28, 2))
sketch8.addConstraint(Sketcher.Constraint("Coincident", 28, 1, 29, 1))
sketch8.addConstraint(Sketcher.Constraint("Coincident", 29, 2, 30, 2))
sketch8.addConstraint(Sketcher.Constraint("Coincident", 30, 1, 31, 1))
sketch8.addConstraint(Sketcher.Constraint("Coincident", 31, 2, 32, 2))
sketch8.addConstraint(Sketcher.Constraint("Coincident", 32, 1, 33, 1))
sketch8.addConstraint(Sketcher.Constraint("Coincident", 33, 2, 34, 1))
sketch8.addConstraint(Sketcher.Constraint("Coincident", 34, 2, 35, 1))
sketch8.addConstraint(Sketcher.Constraint("Coincident", 35, 2, 36, 1))
sketch8.addConstraint(Sketcher.Constraint("Coincident", 36, 2, 37, 1))
sketch8.addConstraint(Sketcher.Constraint("Coincident", 37, 2, 38, 1))
sketch8.addConstraint(Sketcher.Constraint("Coincident", 38, 2, 39, 1))
sketch8.addConstraint(Sketcher.Constraint("Coincident", 39, 2, 22, 1))
sketch8.addConstraint(Sketcher.Constraint("Coincident", 40, 1, 41, 1))
sketch8.addConstraint(Sketcher.Constraint("Coincident", 41, 2, 42, 2))
sketch8.addConstraint(Sketcher.Constraint("Coincident", 42, 1, 43, 1))
sketch8.addConstraint(Sketcher.Constraint("Coincident", 43, 2, 44, 2))
sketch8.addConstraint(Sketcher.Constraint("Coincident", 44, 1, 45, 1))
sketch8.addConstraint(Sketcher.Constraint("Coincident", 45, 2, 46, 2))
sketch8.addConstraint(Sketcher.Constraint("Coincident", 46, 1, 47, 1))
sketch8.addConstraint(Sketcher.Constraint("Coincident", 47, 2, 40, 2))
sketch8.addConstraint(Sketcher.Constraint("Coincident", 48, 2, 49, 1))
sketch8.addConstraint(Sketcher.Constraint("Coincident", 49, 2, 50, 1))
sketch8.addConstraint(Sketcher.Constraint("Coincident", 50, 2, 51, 1))
sketch8.addConstraint(Sketcher.Constraint("Coincident", 51, 2, 48, 1))
sketch8.addConstraint(Sketcher.Constraint("Vertical", 0))
sketch8.addConstraint(Sketcher.Constraint("Horizontal", 1))
sketch8.addConstraint(Sketcher.Constraint("Vertical", 2))
sketch8.addConstraint(Sketcher.Constraint("Horizontal", 3))
sketch8.addConstraint(Sketcher.Constraint("Vertical", 4))
sketch8.addConstraint(Sketcher.Constraint("Horizontal", 5))
sketch8.addConstraint(Sketcher.Constraint("Vertical", 6))
sketch8.addConstraint(Sketcher.Constraint("Horizontal", 7))
sketch8.addConstraint(Sketcher.Constraint("Vertical", 8))
sketch8.addConstraint(Sketcher.Constraint("Horizontal", 9))
sketch8.addConstraint(Sketcher.Constraint("Vertical", 10))
sketch8.addConstraint(Sketcher.Constraint("Horizontal", 11))
sketch8.addConstraint(Sketcher.Constraint("Vertical", 12))
sketch8.addConstraint(Sketcher.Constraint("Horizontal", 13))
sketch8.addConstraint(Sketcher.Constraint("Vertical", 14))
sketch8.addConstraint(Sketcher.Constraint("Vertical", 18))
sketch8.addConstraint(Sketcher.Constraint("Horizontal", 19))
sketch8.addConstraint(Sketcher.Constraint("Vertical", 20))
sketch8.addConstraint(Sketcher.Constraint("Horizontal", 21))
sketch8.addConstraint(Sketcher.Constraint("Horizontal", 22))
sketch8.addConstraint(Sketcher.Constraint("Vertical", 23))
sketch8.addConstraint(Sketcher.Constraint("Vertical", 25))
sketch8.addConstraint(Sketcher.Constraint("Vertical", 33))
sketch8.addConstraint(Sketcher.Constraint("Horizontal", 34))
sketch8.addConstraint(Sketcher.Constraint("Vertical", 35))
sketch8.addConstraint(Sketcher.Constraint("Horizontal", 36))
sketch8.addConstraint(Sketcher.Constraint("Vertical", 37))
sketch8.addConstraint(Sketcher.Constraint("Horizontal", 38))
sketch8.addConstraint(Sketcher.Constraint("Vertical", 39))
sketch8.addConstraint(Sketcher.Constraint("Horizontal", 48))
sketch8.addConstraint(Sketcher.Constraint("Vertical", 49))
sketch8.addConstraint(Sketcher.Constraint("Horizontal", 50))
sketch8.addConstraint(Sketcher.Constraint("Vertical", 51))
sketch8.addConstraint(Sketcher.Constraint("Symmetric", 4, 2, 7, 2, -1))
sketch8.addConstraint(Sketcher.Constraint("Symmetric", 1, 2, 10, 2, -1))
sketch8.addConstraint(Sketcher.Constraint("Horizontal", 1, 2, 4, 2))
sketch8.addConstraint(Sketcher.Constraint("Horizontal", 5, 2, 16, 2))
sketch8.addConstraint(Sketcher.Constraint("Horizontal", 13, 2, 18, 2))
sketch8.addConstraint(Sketcher.Constraint("Horizontal", 19, 2, 47, 2))
sketch8.addConstraint(Sketcher.Constraint("Vertical", 16, 2, 19, 2))
sketch8.addConstraint(Sketcher.Constraint("Vertical", 23, 2, 36, 2))
sketch8.addConstraint(Sketcher.Constraint("Equal", 16, 21))
sketch8.addConstraint(Sketcher.Constraint("Equal", 9, 22))
sketch8.addConstraint(Sketcher.Constraint("DistanceX", 1, 2, 1, 1, Q("1.236 mm")))
sketch8.addConstraint(Sketcher.Constraint("DistanceX", 48, 1, 48, 2, Q("2.979 mm")))
sketch8.addConstraint(Sketcher.Constraint("DistanceY", 2, 1, 2, 2, Q("1.447 mm")))
sketch8.addConstraint(Sketcher.Constraint("DistanceY", -1, 1, 23, 2, Q("0.64 mm")))
sketch8.addConstraint(Sketcher.Constraint("DistanceX", 13, 2, 7, 2, Q("3.34 mm")))
sketch8.addConstraint(Sketcher.Constraint("DistanceX", 16, 2, 5, 2, Q("5.73 mm")))
sketch8.addConstraint(Sketcher.Constraint("DistanceY", 48, 2, 33, 2, Q("1.43 mm")))
sketch8.addConstraint(Sketcher.Constraint("DistanceY", 49, 2, 47, 2, Q("0.64 mm")))
sketch8.addConstraint(Sketcher.Constraint("DistanceX", 3, 2, 3, 1, Q("3.2923 mm")))
sketch8.addConstraint(Sketcher.Constraint("DistanceX", 34, 1, 34, 2, Q("2.9995 mm")))
sketch8.addConstraint(Sketcher.Constraint("DistanceX", 36, 2, 36, 1, Q("1.7942 mm")))
sketch8.addConstraint(Sketcher.Constraint("DistanceY", 8, 2, 8, 1, Q("1.3074 mm")))
sketch8.addConstraint(Sketcher.Constraint("DistanceY", 12, 1, 12, 2, Q("2.2437 mm")))
sketch8.addConstraint(Sketcher.Constraint("DistanceY", 23, 2, 23, 1, Q("0.3745 mm")))
sketch8.addConstraint(Sketcher.Constraint("DistanceY", 25, 1, 25, 2, Q("0.1362 mm")))
sketch8.addConstraint(Sketcher.Constraint("DistanceY", 33, 1, 33, 2, Q("1.2257 mm")))
sketch8.addConstraint(Sketcher.Constraint("DistanceY", 35, 2, 35, 1, Q("0.7048 mm")))
sketch8.addConstraint(Sketcher.Constraint("DistanceY", 37, 2, 37, 1, Q("0.6196 mm")))
sketch8.addConstraint(Sketcher.Constraint("DistanceX", 43, 2, 48, 2, Q("2.986 mm")))
pocket4 = doc.addObject("PartDesign::Pocket", "Pocket003")
body.addObject(pocket4)
pocket4.Profile = sketch8
pocket4.Length = 0.5
pocket4.Reversed = True

# Sketch on XY plane
sketch9 = doc.addObject("Sketcher::SketchObject", "Sketch008")
body.addObject(sketch9)
sketch9.AttachmentSupport = (doc.XY_Plane, [""])
sketch9.MapMode = "FlatFace"
sketch9.addGeometry(Part.ArcOfCircle(Part.Circle(Vector(3.0688, 6.5, 0), Vector(0, 0, 1), 2.5), math.radians(-90), math.radians(90)), False)
sketch9.addGeometry(Part.LineSegment(Vector(3.0688, 4, 0), Vector(-3.8624, 4, 0)), False)
sketch9.addGeometry(Part.ArcOfCircle(Part.Circle(Vector(-3.8624, 6.5, 0), Vector(0, 0, 1), 2.5), math.radians(90), math.radians(270)), False)
sketch9.addGeometry(Part.LineSegment(Vector(-3.8624, 9, 0), Vector(3.0688, 9, 0)), False)
sketch9.addGeometry(Part.ArcOfCircle(Part.Circle(Vector(3.0688, -6.5, 0), Vector(0, 0, 1), 2.5), math.radians(-90), math.radians(90)), False)
sketch9.addGeometry(Part.LineSegment(Vector(3.0688, -9, 0), Vector(-3.8624, -9, 0)), False)
sketch9.addGeometry(Part.ArcOfCircle(Part.Circle(Vector(-3.8624, -6.5, 0), Vector(0, 0, 1), 2.5), math.radians(90), math.radians(270)), False)
sketch9.addGeometry(Part.LineSegment(Vector(-3.8624, -4, 0), Vector(3.0688, -4, 0)), False)
sketch9.addConstraint(Sketcher.Constraint("Tangent", 0, 1, 1, 1))
sketch9.addConstraint(Sketcher.Constraint("Tangent", 1, 2, 2, 2))
sketch9.addConstraint(Sketcher.Constraint("Tangent", 2, 1, 3, 1))
sketch9.addConstraint(Sketcher.Constraint("Tangent", 3, 2, 0, 2))
sketch9.addConstraint(Sketcher.Constraint("Tangent", 4, 1, 5, 1))
sketch9.addConstraint(Sketcher.Constraint("Tangent", 5, 2, 6, 2))
sketch9.addConstraint(Sketcher.Constraint("Tangent", 6, 1, 7, 1))
sketch9.addConstraint(Sketcher.Constraint("Tangent", 7, 2, 4, 2))
sketch9.addConstraint(Sketcher.Constraint("Horizontal", 1))
sketch9.addConstraint(Sketcher.Constraint("Horizontal", 3))
sketch9.addConstraint(Sketcher.Constraint("Horizontal", 5))
sketch9.addConstraint(Sketcher.Constraint("Horizontal", 7))
sketch9.addConstraint(Sketcher.Constraint("Equal", 2, 4))
sketch9.addConstraint(Sketcher.Constraint("Symmetric", 0, 3, 4, 3, -1))
sketch9.addConstraint(Sketcher.Constraint("Vertical", 2, 3, 6, 3))
sketch9.addConstraint(Sketcher.Constraint("Radius", 0, Q("2.5 mm")))
sketch9.addConstraint(Sketcher.Constraint("DistanceY", -1, 1, 0, 1, Q("4 mm")))
sketch9.addConstraint(Sketcher.Constraint("DistanceX", 1, 2, 1, 1, Q("6.9312 mm")))
sketch9.addConstraint(Sketcher.Constraint("DistanceX", -1, 1, 0, 3, Q("3.0688 mm")))
pocket5 = doc.addObject("PartDesign::Pocket", "Pocket004")
body.addObject(pocket5)
pocket5.Profile = sketch9
pocket5.Length = 10
pocket5.Reversed = True

doc.recompute()
